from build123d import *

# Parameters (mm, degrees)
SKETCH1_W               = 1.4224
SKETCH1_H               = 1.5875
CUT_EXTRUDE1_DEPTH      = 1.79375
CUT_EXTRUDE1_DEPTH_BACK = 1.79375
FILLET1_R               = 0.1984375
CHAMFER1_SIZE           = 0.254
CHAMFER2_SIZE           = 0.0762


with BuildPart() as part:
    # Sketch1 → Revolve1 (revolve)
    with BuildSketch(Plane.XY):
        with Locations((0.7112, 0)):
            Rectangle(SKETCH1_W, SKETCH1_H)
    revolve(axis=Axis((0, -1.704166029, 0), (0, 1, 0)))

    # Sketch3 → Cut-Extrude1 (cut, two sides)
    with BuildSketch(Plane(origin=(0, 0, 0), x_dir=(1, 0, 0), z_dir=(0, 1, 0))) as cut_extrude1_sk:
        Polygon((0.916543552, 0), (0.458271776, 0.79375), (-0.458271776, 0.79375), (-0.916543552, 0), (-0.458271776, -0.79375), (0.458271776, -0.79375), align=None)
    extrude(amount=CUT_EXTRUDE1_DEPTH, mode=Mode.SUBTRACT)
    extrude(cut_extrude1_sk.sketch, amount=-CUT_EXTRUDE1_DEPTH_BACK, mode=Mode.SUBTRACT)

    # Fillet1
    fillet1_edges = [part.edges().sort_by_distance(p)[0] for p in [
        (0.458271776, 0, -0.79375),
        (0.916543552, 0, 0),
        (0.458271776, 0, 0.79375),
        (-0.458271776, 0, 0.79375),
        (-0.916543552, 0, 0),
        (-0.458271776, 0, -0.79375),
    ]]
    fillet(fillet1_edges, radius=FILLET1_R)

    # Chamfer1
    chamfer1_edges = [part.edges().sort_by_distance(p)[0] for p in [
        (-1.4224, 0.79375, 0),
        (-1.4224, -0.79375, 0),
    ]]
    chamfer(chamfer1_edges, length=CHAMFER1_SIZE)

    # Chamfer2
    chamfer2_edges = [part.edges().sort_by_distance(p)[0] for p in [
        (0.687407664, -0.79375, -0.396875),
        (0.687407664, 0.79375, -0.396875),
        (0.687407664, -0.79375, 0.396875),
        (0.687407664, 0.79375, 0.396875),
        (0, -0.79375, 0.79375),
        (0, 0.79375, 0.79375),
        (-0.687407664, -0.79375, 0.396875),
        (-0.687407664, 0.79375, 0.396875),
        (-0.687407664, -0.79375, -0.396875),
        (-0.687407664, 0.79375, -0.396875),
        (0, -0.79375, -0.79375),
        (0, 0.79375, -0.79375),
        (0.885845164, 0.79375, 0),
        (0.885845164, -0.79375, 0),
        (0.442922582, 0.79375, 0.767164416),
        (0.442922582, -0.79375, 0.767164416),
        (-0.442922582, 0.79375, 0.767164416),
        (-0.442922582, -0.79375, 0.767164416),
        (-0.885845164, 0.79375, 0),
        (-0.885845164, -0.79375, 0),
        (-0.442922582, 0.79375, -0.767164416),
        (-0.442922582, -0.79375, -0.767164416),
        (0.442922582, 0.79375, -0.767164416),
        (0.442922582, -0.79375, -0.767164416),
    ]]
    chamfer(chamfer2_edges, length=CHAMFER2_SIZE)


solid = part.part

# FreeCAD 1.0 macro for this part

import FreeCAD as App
import Part
import Sketcher
from FreeCAD import Vector
Q = App.Units.Quantity


def edges_at(feature, points):
    """Names of the edges that pass closest to the given points."""
    edges = feature.Shape.Edges
    near = lambda p: min(range(len(edges)), key=lambda i: edges[i].distToShape(Part.Vertex(*p))[0])
    return sorted({f"Edge{near(p) + 1}" for p in points})

doc = App.newDocument("Part")
body = doc.addObject("PartDesign::Body", "Body")

sketch1 = body.newObject("Sketcher::SketchObject", "Sketch")
sketch1.AttachmentSupport = (doc.getObject("XY_Plane"), [""])
sketch1.MapMode = "FlatFace"
sketch1.addGeometry(Part.LineSegment(Vector(0, 0.79375, 0), Vector(0, -0.79375, 0)), False)
sketch1.addGeometry(Part.LineSegment(Vector(0, -0.79375, 0), Vector(1.4224, -0.79375, 0)), False)
sketch1.addGeometry(Part.LineSegment(Vector(1.4224, -0.79375, 0), Vector(1.4224, 0.79375, 0)), False)
sketch1.addGeometry(Part.LineSegment(Vector(1.4224, 0.79375, 0), Vector(0, 0.79375, 0)), False)
sketch1.addConstraint(Sketcher.Constraint("Coincident", 0, 2, 1, 1))
sketch1.addConstraint(Sketcher.Constraint("Coincident", 1, 2, 2, 1))
sketch1.addConstraint(Sketcher.Constraint("Coincident", 2, 2, 3, 1))
sketch1.addConstraint(Sketcher.Constraint("Coincident", 3, 2, 0, 1))
sketch1.addConstraint(Sketcher.Constraint("Vertical", 0))
sketch1.addConstraint(Sketcher.Constraint("Horizontal", 1))
sketch1.addConstraint(Sketcher.Constraint("Vertical", 2))
sketch1.addConstraint(Sketcher.Constraint("Horizontal", 3))
sketch1.addConstraint(Sketcher.Constraint("Symmetric", 0, 2, 3, 2, -1, 1))
sketch1.addConstraint(Sketcher.Constraint("DistanceX", 1, 1, 1, 2, Q("0.056 in")))
sketch1.addConstraint(Sketcher.Constraint("DistanceY", 0, 2, 0, 1, Q("0.0625 in")))
revolution = body.newObject("PartDesign::Revolution", "Revolution")
revolution.Profile = sketch1
revolution.ReferenceAxis = (sketch1, ["V_Axis"])
revolution.Angle = 360

sketch2 = body.newObject("Sketcher::SketchObject", "Sketch001")
sketch2.AttachmentSupport = (doc.getObject("XZ_Plane"), [""])
sketch2.MapMode = "FlatFace"
sketch2.addGeometry(Part.LineSegment(Vector(0.916544, 0, 0), Vector(0.458272, -0.79375, 0)), False)
sketch2.addGeometry(Part.LineSegment(Vector(0.458272, -0.79375, 0), Vector(-0.458272, -0.79375, 0)), False)
sketch2.addGeometry(Part.LineSegment(Vector(-0.458272, -0.79375, 0), Vector(-0.916544, 0, 0)), False)
sketch2.addGeometry(Part.LineSegment(Vector(-0.916544, 0, 0), Vector(-0.458272, 0.79375, 0)), False)
sketch2.addGeometry(Part.LineSegment(Vector(-0.458272, 0.79375, 0), Vector(0.458272, 0.79375, 0)), False)
sketch2.addGeometry(Part.LineSegment(Vector(0.458272, 0.79375, 0), Vector(0.916544, 0, 0)), False)
sketch2.addConstraint(Sketcher.Constraint("Coincident", 0, 2, 1, 1))
sketch2.addConstraint(Sketcher.Constraint("Coincident", 1, 2, 2, 1))
sketch2.addConstraint(Sketcher.Constraint("Coincident", 2, 2, 3, 1))
sketch2.addConstraint(Sketcher.Constraint("Coincident", 3, 2, 4, 1))
sketch2.addConstraint(Sketcher.Constraint("Coincident", 4, 2, 5, 1))
sketch2.addConstraint(Sketcher.Constraint("Coincident", 5, 2, 0, 1))
sketch2.addConstraint(Sketcher.Constraint("Horizontal", 1))
sketch2.addConstraint(Sketcher.Constraint("Horizontal", 4))
sketch2.addConstraint(Sketcher.Constraint("Symmetric", 0, 2, 3, 2, -1, 1))
sketch2.addConstraint(Sketcher.Constraint("Symmetric", 2, 2, 5, 2, -1, 1))
sketch2.addConstraint(Sketcher.Constraint("PointOnObject", 2, 2, -1))
sketch2.addConstraint(Sketcher.Constraint("Parallel", 2, 5))
sketch2.addConstraint(Sketcher.Constraint("Vertical", 1, 2, 3, 2))
sketch2.addConstraint(Sketcher.Constraint("Angle", 0, Q("-120 deg")))
sketch2.addConstraint(Sketcher.Constraint("DistanceY", 0, 2, -1, 1, Q("0.03125 in")))
sketch2.addConstraint(Sketcher.Constraint("DistanceX", 1, 2, 1, 1, Q("0.916544 mm")))
pocket1 = body.newObject("PartDesign::Pocket", "Pocket")
pocket1.Profile = sketch2
pocket1.Type = "ThroughAll"
pocket1.Midplane = True
doc.recompute()

fillet = body.newObject("PartDesign::Fillet", "Fillet")
fillet.Base = (pocket1, edges_at(pocket1, [
    (0.458, 0, -0.794),
    (0.917, 0, 0),
    (0.458, 0, 0.794),
    (-0.458, 0, 0.794),
    (-0.917, 0, 0),
    (-0.458, 0, -0.794),
]))
fillet.Radius = 0.198437
doc.recompute()

chamfer = body.newObject("PartDesign::Chamfer", "Chamfer")
chamfer.Base = (fillet, edges_at(fillet, [(-1.422, 0.794, 0), (-1.422, -0.794, 0)]))
chamfer.Size = Q("0.01 in")
doc.recompute()

chamfer2 = body.newObject("PartDesign::Chamfer", "Chamfer001")
chamfer2.Base = (chamfer, edges_at(chamfer, [
    (0.687, -0.794, -0.397),
    (0.687, 0.794, -0.397),
    (0.687, -0.794, 0.397),
    (0.687, 0.794, 0.397),
    (0, -0.794, 0.794),
    (0, 0.794, 0.794),
    (-0.687, -0.794, 0.397),
    (-0.687, 0.794, 0.397),
    (-0.687, -0.794, -0.397),
    (-0.687, 0.794, -0.397),
    (0, -0.794, -0.794),
    (0, 0.794, -0.794),
    (0.886, 0.794, 0),
    (0.886, -0.794, 0),
    (0.443, 0.794, 0.767),
    (0.443, -0.794, 0.767),
    (-0.443, 0.794, 0.767),
    (-0.443, -0.794, 0.767),
    (-0.886, 0.794, 0),
    (-0.886, -0.794, 0),
    (-0.443, 0.794, -0.767),
    (-0.443, -0.794, -0.767),
    (0.443, 0.794, -0.767),
    (0.443, -0.794, -0.767),
]))
chamfer2.Size = Q("0.003 in")

doc.recompute()
